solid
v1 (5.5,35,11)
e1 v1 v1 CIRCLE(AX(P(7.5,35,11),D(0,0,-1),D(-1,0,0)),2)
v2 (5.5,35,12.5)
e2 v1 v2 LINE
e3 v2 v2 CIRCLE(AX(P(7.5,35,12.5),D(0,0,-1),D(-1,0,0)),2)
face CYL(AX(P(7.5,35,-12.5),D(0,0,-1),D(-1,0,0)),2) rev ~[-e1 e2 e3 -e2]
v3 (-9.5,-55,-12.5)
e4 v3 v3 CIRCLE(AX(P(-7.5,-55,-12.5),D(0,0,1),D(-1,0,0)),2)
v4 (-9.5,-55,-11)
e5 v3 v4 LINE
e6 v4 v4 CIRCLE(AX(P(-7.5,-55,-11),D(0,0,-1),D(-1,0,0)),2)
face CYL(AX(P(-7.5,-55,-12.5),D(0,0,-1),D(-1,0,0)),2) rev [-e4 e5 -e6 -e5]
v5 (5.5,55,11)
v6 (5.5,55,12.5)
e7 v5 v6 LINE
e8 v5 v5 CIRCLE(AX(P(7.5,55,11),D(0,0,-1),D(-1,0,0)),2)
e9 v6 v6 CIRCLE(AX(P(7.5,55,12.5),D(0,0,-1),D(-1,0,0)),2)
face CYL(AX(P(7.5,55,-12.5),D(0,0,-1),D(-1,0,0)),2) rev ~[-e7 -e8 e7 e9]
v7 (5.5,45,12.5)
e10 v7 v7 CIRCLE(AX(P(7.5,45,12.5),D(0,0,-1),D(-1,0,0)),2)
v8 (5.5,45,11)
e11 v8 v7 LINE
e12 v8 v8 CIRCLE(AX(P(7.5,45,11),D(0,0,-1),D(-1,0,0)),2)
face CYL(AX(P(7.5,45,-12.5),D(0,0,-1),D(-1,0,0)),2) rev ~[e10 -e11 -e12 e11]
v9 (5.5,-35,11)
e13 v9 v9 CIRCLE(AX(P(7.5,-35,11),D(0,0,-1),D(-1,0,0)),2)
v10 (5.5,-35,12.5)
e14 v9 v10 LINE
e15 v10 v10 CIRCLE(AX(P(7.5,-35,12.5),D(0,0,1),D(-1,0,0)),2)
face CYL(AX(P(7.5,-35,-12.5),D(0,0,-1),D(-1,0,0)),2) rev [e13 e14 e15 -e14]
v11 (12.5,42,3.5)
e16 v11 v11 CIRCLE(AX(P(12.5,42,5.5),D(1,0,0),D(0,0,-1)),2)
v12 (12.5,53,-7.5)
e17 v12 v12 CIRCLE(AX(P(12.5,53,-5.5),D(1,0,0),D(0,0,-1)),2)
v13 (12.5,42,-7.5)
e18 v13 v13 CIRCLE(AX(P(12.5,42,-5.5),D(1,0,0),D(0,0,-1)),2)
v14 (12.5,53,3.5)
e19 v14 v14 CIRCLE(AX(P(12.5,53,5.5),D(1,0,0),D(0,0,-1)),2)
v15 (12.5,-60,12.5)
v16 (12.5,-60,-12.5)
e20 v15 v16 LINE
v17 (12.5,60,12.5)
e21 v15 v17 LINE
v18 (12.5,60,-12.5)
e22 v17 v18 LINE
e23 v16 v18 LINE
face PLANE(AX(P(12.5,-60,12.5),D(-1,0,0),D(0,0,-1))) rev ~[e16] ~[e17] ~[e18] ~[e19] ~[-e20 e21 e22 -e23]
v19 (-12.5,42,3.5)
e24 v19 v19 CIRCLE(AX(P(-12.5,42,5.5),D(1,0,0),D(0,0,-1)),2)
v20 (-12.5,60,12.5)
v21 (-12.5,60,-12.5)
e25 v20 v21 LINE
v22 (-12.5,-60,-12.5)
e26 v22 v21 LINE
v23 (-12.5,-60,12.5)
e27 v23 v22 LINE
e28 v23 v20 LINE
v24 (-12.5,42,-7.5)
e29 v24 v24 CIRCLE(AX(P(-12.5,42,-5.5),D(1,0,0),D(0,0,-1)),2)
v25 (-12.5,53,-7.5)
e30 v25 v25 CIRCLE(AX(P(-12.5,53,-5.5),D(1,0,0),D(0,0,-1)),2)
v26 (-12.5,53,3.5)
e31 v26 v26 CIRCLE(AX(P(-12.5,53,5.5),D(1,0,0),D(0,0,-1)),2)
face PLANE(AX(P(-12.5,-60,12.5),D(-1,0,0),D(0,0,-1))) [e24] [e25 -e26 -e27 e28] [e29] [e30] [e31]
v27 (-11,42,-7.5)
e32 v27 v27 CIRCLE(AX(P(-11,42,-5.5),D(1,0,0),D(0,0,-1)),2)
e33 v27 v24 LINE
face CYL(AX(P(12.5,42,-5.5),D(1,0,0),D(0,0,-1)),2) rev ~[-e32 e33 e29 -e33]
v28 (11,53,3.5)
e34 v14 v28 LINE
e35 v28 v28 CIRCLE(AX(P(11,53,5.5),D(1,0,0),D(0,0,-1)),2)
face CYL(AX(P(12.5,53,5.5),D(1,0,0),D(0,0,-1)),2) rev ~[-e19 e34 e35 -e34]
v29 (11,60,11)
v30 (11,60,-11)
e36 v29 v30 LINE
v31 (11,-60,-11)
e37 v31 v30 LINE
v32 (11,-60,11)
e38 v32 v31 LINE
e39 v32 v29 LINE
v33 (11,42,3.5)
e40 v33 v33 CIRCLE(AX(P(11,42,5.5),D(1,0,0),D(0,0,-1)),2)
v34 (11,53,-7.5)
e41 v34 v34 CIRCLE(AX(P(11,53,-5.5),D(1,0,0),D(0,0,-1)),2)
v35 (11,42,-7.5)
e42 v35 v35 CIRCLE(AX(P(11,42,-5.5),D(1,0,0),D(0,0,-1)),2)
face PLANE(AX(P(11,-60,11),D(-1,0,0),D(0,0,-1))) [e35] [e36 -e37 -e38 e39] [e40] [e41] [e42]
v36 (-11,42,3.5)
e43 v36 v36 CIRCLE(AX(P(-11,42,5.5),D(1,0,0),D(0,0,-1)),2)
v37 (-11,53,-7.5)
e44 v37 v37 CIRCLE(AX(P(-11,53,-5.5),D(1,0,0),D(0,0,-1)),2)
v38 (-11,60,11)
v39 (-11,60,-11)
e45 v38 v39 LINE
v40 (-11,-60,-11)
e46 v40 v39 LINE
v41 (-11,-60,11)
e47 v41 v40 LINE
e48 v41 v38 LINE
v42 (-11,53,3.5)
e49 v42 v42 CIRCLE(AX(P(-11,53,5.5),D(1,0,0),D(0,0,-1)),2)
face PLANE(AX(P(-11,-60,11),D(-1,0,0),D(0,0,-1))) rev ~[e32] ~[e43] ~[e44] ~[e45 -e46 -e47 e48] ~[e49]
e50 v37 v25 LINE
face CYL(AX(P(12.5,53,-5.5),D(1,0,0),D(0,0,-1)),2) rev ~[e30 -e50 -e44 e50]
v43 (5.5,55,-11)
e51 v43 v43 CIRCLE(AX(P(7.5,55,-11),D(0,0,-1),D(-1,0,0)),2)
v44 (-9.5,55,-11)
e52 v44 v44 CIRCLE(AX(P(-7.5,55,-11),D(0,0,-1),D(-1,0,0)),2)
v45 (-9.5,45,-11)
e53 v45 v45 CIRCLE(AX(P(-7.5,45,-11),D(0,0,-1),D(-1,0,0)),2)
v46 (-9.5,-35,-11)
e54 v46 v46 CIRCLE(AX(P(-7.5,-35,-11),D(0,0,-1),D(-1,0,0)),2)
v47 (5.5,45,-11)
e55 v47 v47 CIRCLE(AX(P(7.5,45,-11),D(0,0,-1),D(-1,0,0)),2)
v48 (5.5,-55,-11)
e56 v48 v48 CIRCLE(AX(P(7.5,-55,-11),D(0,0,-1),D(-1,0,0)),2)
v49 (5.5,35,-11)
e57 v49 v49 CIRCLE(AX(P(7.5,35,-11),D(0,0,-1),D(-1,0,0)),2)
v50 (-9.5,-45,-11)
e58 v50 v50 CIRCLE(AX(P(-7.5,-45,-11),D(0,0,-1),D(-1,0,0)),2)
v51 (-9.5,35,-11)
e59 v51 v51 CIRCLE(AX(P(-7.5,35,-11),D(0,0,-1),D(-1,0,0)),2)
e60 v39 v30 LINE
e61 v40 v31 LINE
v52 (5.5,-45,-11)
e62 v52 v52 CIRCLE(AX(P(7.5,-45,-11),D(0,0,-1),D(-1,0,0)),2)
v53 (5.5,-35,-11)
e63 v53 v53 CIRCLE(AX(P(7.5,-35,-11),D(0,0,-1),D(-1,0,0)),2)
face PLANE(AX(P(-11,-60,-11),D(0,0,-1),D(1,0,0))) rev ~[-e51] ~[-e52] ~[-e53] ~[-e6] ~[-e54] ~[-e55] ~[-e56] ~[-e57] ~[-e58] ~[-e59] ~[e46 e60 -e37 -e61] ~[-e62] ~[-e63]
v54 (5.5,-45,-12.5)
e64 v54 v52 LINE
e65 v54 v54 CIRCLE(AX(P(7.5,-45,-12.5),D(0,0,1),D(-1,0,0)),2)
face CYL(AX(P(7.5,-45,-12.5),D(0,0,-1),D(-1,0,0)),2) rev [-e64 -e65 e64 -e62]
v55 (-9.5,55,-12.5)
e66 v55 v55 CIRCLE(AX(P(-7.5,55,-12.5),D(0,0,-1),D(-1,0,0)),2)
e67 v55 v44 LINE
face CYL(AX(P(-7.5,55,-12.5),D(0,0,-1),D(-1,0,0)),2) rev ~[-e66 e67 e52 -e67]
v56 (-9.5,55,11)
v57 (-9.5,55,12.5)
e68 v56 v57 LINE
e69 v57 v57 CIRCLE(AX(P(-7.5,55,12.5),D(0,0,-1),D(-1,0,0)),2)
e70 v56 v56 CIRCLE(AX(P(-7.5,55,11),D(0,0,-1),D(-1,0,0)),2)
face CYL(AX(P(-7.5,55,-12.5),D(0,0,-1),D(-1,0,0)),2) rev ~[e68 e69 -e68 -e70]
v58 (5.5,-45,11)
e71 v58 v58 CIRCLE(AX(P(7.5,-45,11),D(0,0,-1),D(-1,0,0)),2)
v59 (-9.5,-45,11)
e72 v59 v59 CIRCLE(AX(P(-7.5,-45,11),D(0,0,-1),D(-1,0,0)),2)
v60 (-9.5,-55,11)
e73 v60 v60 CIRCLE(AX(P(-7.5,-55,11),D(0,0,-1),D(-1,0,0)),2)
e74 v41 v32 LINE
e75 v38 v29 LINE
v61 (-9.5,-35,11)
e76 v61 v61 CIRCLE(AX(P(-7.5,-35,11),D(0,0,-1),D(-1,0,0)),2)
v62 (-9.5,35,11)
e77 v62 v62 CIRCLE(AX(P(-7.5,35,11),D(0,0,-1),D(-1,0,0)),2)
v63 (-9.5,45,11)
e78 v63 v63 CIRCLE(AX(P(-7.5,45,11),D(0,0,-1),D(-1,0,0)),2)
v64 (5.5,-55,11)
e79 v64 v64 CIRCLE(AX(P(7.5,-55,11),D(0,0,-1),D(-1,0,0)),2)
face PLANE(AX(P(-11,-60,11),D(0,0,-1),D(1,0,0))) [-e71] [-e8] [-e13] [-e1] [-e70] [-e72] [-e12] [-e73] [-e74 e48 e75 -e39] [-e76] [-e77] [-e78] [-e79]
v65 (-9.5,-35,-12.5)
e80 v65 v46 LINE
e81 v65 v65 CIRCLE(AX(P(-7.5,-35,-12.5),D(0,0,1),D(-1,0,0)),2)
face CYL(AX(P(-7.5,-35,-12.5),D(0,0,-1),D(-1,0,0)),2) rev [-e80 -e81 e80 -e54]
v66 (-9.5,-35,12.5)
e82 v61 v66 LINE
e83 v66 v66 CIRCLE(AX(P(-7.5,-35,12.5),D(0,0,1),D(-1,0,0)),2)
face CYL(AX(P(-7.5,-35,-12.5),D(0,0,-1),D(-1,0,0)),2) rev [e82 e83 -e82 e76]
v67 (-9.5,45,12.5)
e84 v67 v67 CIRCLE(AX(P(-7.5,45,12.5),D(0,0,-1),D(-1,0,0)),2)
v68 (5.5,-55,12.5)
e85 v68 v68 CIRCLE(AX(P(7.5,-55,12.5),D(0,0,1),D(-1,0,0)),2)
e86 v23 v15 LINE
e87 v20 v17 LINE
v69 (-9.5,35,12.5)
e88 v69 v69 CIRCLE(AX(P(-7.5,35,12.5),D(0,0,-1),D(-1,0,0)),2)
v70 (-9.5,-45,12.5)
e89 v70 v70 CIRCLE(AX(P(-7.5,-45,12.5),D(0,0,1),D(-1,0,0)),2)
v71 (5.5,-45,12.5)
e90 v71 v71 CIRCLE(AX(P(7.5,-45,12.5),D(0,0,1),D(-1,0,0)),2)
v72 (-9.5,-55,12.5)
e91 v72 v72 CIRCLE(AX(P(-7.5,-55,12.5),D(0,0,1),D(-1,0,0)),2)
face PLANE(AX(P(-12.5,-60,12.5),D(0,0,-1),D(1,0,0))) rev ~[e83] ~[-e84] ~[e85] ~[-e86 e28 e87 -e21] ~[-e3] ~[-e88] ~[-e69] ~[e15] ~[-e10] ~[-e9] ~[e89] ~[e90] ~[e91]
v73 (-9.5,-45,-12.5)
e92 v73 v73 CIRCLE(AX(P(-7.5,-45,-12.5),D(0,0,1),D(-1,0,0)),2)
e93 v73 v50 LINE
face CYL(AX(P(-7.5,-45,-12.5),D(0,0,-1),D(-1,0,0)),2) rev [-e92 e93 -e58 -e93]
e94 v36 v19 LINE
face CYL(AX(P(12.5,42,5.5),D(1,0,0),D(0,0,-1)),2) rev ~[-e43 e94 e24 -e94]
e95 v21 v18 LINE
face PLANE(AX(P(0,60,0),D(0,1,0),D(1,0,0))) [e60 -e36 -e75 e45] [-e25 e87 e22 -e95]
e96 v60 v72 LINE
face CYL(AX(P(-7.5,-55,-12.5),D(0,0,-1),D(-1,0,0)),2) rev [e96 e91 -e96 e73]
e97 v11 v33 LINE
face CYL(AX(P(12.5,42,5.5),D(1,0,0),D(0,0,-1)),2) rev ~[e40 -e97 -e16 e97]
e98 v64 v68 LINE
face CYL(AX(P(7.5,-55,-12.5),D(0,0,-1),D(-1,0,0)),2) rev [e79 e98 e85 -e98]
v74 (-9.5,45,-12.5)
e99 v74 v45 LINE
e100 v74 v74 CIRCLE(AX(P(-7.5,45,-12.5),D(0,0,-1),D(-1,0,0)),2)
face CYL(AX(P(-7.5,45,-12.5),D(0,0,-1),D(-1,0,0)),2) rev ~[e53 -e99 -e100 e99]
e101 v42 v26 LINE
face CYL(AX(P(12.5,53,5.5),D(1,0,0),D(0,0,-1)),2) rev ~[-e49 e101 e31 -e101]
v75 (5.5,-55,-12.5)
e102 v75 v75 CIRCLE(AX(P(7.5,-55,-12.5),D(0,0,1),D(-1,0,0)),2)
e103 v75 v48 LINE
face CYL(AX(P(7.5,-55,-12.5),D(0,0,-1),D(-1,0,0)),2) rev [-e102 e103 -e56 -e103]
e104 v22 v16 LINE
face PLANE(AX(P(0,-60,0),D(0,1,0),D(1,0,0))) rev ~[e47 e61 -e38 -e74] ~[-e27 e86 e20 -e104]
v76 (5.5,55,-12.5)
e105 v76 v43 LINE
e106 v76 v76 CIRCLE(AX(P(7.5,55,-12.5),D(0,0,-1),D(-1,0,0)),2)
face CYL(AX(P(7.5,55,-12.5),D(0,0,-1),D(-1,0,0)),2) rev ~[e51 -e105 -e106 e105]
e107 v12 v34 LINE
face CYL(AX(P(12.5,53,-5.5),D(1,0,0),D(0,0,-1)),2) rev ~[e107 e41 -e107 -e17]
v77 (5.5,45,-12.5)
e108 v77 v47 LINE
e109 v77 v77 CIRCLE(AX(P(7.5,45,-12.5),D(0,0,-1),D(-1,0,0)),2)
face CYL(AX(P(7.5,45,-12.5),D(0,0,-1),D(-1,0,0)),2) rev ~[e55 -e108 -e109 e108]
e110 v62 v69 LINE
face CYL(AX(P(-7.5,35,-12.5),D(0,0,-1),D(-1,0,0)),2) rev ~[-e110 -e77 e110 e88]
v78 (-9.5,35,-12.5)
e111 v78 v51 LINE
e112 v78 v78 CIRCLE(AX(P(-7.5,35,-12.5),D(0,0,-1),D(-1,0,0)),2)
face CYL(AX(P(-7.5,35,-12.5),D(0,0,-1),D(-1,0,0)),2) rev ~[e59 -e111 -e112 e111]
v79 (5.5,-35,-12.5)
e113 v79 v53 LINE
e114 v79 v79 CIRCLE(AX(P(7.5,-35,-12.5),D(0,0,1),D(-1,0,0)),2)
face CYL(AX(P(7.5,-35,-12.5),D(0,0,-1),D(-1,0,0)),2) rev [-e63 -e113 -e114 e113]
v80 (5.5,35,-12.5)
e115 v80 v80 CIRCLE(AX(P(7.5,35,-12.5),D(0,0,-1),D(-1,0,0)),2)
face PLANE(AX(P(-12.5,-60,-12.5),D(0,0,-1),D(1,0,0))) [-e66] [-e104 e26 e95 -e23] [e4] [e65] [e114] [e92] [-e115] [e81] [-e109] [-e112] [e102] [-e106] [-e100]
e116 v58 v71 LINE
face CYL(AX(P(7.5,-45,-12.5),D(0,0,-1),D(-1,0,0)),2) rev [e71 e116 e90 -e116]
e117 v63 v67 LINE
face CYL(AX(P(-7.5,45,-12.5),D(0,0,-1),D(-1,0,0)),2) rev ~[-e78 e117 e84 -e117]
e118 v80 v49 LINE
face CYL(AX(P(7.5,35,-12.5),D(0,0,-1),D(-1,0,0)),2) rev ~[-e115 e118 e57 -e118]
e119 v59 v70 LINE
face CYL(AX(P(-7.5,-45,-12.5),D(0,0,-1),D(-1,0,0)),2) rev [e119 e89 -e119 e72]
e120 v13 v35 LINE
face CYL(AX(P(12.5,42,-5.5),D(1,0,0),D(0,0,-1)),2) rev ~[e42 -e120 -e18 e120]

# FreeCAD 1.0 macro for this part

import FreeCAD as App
import Part
import Sketcher

V = App.Vector
Q = App.Units.Quantity


def add_polygon(sketch, points):
    """Adds a closed chain of lines whose ends are joined by coincident constraints."""
    first, n = sketch.GeometryCount, len(points)
    for a, b in zip(points, points[1:] + points[:1]):
        sketch.addGeometry(Part.LineSegment(App.Vector(*a, 0), App.Vector(*b, 0)), False)
    for i in range(n):
        sketch.addConstraint(Sketcher.Constraint("Coincident", first + i, 2, first + (i + 1) % n, 1))

doc = App.newDocument("Part")
body = doc.addObject("PartDesign::Body", "Body")

# Sketch on XZ plane
sketch1 = body.newObject("Sketcher::SketchObject", "Sketch")
sketch1.AttachmentSupport = (doc.getObject("XZ_Plane"), [""])
sketch1.MapMode = "FlatFace"
add_polygon(sketch1, [(-12.5, -12.5), (-12.5, 12.5), (12.5, 12.5), (12.5, -12.5)])  # lines 0-3
add_polygon(sketch1, [(11, 11), (-11, 11), (-11, -11), (11, -11)])  # lines 4-7
sketch1.addConstraint(Sketcher.Constraint("Vertical", 0))
sketch1.addConstraint(Sketcher.Constraint("Horizontal", 1))
sketch1.addConstraint(Sketcher.Constraint("Vertical", 2))
sketch1.addConstraint(Sketcher.Constraint("Horizontal", 3))
sketch1.addConstraint(Sketcher.Constraint("Horizontal", 4))
sketch1.addConstraint(Sketcher.Constraint("Vertical", 5))
sketch1.addConstraint(Sketcher.Constraint("Horizontal", 6))
sketch1.addConstraint(Sketcher.Constraint("Vertical", 7))
sketch1.addConstraint(Sketcher.Constraint("Symmetric", 0, 2, 2, 2, -1, 1))
sketch1.addConstraint(Sketcher.Constraint("Symmetric", 4, 2, 6, 2, -1, 1))
sketch1.addConstraint(Sketcher.Constraint("Equal", 3, 0))
sketch1.addConstraint(Sketcher.Constraint("Equal", 6, 5))
sketch1.addConstraint(Sketcher.Constraint("DistanceX", 1, 1, 1, 2, Q("25 mm")))
sketch1.addConstraint(Sketcher.Constraint("DistanceX", 4, 2, 4, 1, Q("22 mm")))
pad1 = body.newObject("PartDesign::Pad", "Pad")
pad1.Profile = sketch1
pad1.Type = "TwoLengths"
pad1.Length = 60
pad1.Length2 = 60
pad1.Reversed = True

# Sketch on XY plane
sketch2 = body.newObject("Sketcher::SketchObject", "Sketch001")
sketch2.AttachmentSupport = (doc.getObject("XY_Plane"), [""])
sketch2.MapMode = "FlatFace"
sketch2.AttachmentOffset = App.Placement(V(0, 0, -12.5), App.Rotation())
sketch2.addGeometry(Part.Circle(V(-7.5, 55, 0), V(0, 0, 1), 2), False)
sketch2.addGeometry(Part.Circle(V(-7.5, 45, 0), V(0, 0, 1), 2), False)
sketch2.addGeometry(Part.Circle(V(7.5, 55, 0), V(0, 0, 1), 2), False)
sketch2.addGeometry(Part.Circle(V(7.5, 45, 0), V(0, 0, 1), 2), False)
sketch2.addGeometry(Part.Circle(V(-7.5, 35, 0), V(0, 0, 1), 2), False)
sketch2.addGeometry(Part.Circle(V(7.5, 35, 0), V(0, 0, 1), 2), False)
sketch2.addConstraint(Sketcher.Constraint("Equal", 0, 1))
sketch2.addConstraint(Sketcher.Constraint("Equal", 1, 2))
sketch2.addConstraint(Sketcher.Constraint("Equal", 2, 3))
sketch2.addConstraint(Sketcher.Constraint("Equal", 3, 4))
sketch2.addConstraint(Sketcher.Constraint("Equal", 4, 5))
sketch2.addConstraint(Sketcher.Constraint("Symmetric", 0, 3, 2, 3, -2))
sketch2.addConstraint(Sketcher.Constraint("Symmetric", 1, 3, 3, 3, -2))
sketch2.addConstraint(Sketcher.Constraint("Symmetric", 4, 3, 5, 3, -2))
sketch2.addConstraint(Sketcher.Constraint("Vertical", 0, 3, 1, 3))
sketch2.addConstraint(Sketcher.Constraint("Vertical", 1, 3, 4, 3))
sketch2.addConstraint(Sketcher.Constraint("Diameter", 0, Q("4 mm")))
sketch2.addConstraint(Sketcher.Constraint("DistanceY", -1, 1, 0, 3, Q("55 mm")))
sketch2.addConstraint(Sketcher.Constraint("DistanceY", -1, 1, 1, 3, Q("45 mm")))
sketch2.addConstraint(Sketcher.Constraint("DistanceY", -1, 1, 4, 3, Q("35 mm")))
sketch2.addConstraint(Sketcher.Constraint("DistanceX", 0, 3, 2, 3, Q("15 mm")))
pocket1 = body.newObject("PartDesign::Pocket", "Pocket")
pocket1.Profile = sketch2
pocket1.Length = 25
pocket1.Reversed = True
doc.recompute()

mirrored = body.newObject("PartDesign::Mirrored", "Mirrored")
mirrored.Originals = [pocket1]
mirrored.MirrorPlane = (doc.getObject("XZ_Plane"), [""])
body.Tip = mirrored

# Sketch on YZ plane
sketch3 = body.newObject("Sketcher::SketchObject", "Sketch002")
sketch3.AttachmentSupport = (doc.getObject("YZ_Plane"), [""])
sketch3.MapMode = "FlatFace"
sketch3.AttachmentOffset = App.Placement(V(0, 0, 12.5), App.Rotation())
sketch3.addGeometry(Part.Circle(V(53, -5.5, 0), V(0, 0, 1), 2), False)
sketch3.addGeometry(Part.Circle(V(42, -5.5, 0), V(0, 0, 1), 2), False)
sketch3.addGeometry(Part.Circle(V(53, 5.5, 0), V(0, 0, 1), 2), False)
sketch3.addGeometry(Part.Circle(V(42, 5.5, 0), V(0, 0, 1), 2), False)
sketch3.addConstraint(Sketcher.Constraint("Equal", 0, 1))
sketch3.addConstraint(Sketcher.Constraint("Equal", 1, 2))
sketch3.addConstraint(Sketcher.Constraint("Equal", 2, 3))
sketch3.addConstraint(Sketcher.Constraint("Symmetric", 0, 3, 2, 3, -1))
sketch3.addConstraint(Sketcher.Constraint("Symmetric", 1, 3, 3, 3, -1))
sketch3.addConstraint(Sketcher.Constraint("Horizontal", 0, 3, 1, 3))
sketch3.addConstraint(Sketcher.Constraint("Diameter", 0, Q("4 mm")))
sketch3.addConstraint(Sketcher.Constraint("DistanceX", -1, 1, 0, 3, Q("53 mm")))
sketch3.addConstraint(Sketcher.Constraint("DistanceX", -1, 1, 1, 3, Q("42 mm")))
sketch3.addConstraint(Sketcher.Constraint("DistanceY", 0, 3, 2, 3, Q("11 mm")))
pocket2 = body.newObject("PartDesign::Pocket", "Pocket001")
pocket2.Profile = sketch3
pocket2.Length = 25

doc.recompute()
